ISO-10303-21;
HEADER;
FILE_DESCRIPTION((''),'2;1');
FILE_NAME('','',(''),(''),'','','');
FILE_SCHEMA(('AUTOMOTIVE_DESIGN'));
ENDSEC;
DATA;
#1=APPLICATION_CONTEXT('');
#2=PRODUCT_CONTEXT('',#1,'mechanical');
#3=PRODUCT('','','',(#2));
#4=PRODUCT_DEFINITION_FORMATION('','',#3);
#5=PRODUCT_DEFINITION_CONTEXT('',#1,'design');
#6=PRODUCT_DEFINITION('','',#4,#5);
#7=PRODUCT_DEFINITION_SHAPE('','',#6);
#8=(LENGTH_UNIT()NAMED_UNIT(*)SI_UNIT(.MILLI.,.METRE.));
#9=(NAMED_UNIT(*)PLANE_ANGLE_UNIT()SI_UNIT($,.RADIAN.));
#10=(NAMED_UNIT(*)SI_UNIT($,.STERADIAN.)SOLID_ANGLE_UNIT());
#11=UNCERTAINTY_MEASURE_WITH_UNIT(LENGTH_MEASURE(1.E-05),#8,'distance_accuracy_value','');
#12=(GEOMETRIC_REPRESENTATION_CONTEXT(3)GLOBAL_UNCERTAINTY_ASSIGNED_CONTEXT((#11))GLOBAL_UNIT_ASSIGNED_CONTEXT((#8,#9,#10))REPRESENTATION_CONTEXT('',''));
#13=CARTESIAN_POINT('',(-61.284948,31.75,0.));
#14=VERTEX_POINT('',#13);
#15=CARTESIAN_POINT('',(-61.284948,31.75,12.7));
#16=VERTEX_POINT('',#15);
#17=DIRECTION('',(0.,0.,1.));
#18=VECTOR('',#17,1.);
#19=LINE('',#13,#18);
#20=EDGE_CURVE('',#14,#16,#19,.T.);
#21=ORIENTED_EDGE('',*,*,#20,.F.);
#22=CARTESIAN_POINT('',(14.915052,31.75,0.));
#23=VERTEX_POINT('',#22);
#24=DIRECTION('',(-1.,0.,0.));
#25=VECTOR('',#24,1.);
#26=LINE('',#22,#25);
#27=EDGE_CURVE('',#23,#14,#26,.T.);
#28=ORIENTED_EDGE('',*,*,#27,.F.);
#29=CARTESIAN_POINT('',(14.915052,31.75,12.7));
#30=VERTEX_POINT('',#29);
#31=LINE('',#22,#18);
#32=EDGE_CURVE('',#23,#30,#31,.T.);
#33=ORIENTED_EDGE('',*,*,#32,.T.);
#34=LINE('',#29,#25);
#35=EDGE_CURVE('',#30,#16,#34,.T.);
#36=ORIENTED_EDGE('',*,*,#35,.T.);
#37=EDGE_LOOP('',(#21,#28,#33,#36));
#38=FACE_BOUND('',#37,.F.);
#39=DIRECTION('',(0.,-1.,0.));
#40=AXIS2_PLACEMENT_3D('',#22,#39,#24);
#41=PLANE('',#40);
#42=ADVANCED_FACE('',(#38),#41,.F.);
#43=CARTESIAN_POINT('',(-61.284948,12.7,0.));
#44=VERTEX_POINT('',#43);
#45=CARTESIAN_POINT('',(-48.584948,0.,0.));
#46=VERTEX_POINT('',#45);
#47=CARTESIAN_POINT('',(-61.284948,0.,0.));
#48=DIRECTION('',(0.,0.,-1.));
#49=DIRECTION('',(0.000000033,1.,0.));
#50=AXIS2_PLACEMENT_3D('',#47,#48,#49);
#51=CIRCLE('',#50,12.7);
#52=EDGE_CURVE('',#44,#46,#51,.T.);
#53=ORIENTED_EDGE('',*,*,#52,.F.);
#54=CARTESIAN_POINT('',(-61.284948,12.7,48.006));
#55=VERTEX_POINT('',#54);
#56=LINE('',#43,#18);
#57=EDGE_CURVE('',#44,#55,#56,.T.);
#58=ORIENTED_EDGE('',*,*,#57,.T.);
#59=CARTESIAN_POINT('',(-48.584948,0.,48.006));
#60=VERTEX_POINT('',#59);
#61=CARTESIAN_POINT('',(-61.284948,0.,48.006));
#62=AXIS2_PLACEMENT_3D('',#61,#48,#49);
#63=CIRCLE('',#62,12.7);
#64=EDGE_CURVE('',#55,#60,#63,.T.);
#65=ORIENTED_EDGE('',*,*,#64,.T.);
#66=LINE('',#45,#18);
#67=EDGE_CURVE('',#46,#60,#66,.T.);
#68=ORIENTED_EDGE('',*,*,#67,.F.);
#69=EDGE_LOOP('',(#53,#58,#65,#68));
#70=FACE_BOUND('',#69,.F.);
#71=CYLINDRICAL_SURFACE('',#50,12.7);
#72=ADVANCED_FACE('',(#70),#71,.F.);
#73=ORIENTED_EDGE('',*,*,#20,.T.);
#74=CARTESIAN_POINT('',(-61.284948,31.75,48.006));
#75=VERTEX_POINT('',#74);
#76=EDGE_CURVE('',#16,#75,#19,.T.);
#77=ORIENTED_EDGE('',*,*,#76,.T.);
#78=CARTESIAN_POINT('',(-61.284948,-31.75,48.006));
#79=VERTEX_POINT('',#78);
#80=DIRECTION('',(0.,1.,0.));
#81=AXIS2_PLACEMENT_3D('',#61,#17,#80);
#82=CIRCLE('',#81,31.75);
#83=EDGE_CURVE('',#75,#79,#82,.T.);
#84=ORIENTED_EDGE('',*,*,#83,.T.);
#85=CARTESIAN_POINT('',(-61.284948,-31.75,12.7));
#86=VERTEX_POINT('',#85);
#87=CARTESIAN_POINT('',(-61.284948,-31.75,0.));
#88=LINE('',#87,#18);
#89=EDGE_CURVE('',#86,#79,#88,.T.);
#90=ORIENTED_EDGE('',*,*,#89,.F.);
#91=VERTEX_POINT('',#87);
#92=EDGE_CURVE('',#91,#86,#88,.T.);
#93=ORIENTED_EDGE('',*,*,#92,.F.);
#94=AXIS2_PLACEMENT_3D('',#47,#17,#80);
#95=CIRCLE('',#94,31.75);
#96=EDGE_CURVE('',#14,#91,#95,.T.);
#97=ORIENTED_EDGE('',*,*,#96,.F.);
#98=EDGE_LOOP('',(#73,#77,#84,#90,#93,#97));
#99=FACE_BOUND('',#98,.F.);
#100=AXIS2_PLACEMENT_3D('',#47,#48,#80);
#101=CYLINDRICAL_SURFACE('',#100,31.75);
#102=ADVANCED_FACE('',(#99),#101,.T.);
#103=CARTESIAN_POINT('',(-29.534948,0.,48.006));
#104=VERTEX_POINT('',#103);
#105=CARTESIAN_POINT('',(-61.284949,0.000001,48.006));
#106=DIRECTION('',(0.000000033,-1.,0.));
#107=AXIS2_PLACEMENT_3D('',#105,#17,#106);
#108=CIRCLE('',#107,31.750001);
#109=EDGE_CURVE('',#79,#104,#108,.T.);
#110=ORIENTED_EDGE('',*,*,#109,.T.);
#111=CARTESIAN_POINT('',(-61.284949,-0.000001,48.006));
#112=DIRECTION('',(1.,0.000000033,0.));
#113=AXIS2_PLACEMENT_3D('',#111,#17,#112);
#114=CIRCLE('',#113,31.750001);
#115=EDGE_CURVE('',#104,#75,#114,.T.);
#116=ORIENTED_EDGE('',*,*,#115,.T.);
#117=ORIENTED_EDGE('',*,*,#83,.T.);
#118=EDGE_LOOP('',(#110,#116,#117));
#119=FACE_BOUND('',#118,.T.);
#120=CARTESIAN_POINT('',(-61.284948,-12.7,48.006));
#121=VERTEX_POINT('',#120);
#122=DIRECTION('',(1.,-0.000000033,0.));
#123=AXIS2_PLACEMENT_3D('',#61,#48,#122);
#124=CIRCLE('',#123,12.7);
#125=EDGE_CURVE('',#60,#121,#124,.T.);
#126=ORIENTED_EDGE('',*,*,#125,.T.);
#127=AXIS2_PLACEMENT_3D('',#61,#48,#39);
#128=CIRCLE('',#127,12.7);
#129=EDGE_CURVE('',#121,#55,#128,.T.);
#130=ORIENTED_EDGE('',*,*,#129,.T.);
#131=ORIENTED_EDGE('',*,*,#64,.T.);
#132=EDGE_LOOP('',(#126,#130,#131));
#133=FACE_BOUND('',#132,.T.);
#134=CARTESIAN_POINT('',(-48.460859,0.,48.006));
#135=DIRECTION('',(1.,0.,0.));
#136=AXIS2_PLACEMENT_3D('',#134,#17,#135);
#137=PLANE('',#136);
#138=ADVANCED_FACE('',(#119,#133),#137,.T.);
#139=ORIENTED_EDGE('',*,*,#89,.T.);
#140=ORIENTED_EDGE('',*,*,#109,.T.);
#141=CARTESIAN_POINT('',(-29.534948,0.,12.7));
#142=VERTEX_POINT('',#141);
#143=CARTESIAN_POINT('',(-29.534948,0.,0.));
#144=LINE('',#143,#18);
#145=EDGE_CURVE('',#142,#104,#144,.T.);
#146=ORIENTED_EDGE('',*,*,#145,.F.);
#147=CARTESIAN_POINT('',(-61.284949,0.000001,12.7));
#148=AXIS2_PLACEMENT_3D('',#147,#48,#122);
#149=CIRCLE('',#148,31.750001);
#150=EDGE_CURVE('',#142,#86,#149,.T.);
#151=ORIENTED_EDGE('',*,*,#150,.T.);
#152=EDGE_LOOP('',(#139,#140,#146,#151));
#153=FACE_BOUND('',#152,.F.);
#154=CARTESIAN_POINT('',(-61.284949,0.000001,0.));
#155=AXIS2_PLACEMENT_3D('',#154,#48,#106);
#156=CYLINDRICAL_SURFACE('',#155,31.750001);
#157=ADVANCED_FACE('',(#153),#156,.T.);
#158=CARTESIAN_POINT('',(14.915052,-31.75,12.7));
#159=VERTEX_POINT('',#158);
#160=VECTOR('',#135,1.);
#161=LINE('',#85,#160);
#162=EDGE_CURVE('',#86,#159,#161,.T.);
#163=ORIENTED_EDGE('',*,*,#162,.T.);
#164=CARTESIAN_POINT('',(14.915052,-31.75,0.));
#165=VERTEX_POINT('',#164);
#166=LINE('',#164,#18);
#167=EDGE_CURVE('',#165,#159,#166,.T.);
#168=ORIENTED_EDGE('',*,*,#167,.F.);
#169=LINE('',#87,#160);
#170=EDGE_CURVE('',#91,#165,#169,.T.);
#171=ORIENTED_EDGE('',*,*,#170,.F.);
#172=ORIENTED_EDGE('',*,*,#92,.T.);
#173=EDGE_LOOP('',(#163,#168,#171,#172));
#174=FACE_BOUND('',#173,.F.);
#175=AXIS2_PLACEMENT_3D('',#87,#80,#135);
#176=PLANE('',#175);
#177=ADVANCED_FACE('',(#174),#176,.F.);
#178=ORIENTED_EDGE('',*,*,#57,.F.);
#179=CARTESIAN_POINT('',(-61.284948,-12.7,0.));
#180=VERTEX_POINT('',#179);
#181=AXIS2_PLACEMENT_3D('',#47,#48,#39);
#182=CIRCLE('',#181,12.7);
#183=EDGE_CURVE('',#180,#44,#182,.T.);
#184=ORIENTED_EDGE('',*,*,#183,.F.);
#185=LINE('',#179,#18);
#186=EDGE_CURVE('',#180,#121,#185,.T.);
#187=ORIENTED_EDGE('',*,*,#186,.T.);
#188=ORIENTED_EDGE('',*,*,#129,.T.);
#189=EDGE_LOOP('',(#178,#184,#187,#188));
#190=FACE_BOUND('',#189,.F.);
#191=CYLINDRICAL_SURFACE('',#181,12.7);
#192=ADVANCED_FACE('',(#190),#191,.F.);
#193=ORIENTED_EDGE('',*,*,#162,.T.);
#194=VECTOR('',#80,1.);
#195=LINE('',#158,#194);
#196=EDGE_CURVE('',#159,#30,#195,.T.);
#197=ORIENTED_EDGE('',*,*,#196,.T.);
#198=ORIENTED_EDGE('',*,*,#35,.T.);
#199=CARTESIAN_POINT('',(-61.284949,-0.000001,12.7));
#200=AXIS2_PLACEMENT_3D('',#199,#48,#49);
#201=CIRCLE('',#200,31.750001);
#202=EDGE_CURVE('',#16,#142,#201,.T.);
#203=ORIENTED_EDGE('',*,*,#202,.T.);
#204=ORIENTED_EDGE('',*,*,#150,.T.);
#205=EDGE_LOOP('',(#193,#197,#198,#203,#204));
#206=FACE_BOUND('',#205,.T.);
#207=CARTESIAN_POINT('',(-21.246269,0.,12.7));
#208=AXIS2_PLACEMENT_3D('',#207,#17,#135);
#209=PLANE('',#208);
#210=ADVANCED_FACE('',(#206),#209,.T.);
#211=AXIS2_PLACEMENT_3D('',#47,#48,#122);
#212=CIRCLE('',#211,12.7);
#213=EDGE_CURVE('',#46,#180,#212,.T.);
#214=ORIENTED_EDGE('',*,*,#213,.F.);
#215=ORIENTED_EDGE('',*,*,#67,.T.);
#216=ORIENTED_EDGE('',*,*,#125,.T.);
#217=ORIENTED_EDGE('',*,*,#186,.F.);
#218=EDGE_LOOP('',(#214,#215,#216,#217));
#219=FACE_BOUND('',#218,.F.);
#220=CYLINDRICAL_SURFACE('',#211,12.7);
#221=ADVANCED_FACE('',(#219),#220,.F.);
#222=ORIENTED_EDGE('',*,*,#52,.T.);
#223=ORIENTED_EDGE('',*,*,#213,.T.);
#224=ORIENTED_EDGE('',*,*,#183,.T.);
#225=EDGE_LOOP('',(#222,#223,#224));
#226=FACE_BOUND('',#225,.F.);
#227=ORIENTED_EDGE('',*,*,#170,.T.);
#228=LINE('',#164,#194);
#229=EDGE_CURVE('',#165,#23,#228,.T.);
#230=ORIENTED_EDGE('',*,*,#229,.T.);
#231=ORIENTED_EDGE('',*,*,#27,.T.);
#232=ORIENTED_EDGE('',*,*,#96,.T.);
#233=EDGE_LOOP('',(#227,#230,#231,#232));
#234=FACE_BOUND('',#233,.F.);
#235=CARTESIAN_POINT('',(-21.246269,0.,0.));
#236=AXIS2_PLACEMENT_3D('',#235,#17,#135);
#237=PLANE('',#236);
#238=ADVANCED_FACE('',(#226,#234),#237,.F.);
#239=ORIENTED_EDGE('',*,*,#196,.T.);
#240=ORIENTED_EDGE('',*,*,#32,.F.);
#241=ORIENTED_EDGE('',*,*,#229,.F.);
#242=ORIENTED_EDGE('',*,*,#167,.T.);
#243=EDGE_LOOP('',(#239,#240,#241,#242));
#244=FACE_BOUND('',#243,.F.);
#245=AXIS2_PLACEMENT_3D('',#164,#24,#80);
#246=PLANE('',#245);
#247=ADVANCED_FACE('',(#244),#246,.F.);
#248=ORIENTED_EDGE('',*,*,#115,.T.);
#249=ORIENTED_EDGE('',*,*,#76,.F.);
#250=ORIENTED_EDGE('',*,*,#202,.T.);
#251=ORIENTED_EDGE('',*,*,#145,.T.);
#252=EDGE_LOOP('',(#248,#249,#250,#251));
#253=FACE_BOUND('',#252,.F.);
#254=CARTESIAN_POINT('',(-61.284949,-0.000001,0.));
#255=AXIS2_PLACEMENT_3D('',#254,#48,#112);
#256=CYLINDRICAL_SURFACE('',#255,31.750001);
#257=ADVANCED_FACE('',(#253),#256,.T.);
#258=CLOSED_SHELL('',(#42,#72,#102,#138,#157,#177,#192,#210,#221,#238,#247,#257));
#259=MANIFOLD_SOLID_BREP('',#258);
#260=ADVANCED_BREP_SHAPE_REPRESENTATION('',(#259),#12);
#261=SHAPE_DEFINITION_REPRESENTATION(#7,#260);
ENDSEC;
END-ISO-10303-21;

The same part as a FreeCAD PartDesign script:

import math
import FreeCAD as App
import Part
import Sketcher

V = App.Vector
Q = App.Units.Quantity

doc = App.newDocument("Part")
body = doc.addObject("PartDesign::Body", "Body")

# Sketch on XY plane
sketch1 = body.newObject("Sketcher::SketchObject", "Sketch")
sketch1.AttachmentSupport = (doc.getObject("XY_Plane"), [""])
sketch1.MapMode = "FlatFace"
sketch1.addGeometry([
    Part.ArcOfCircle(Part.Circle(V(-61, 0, 0), V(0, 0, 1), 32), math.radians(0), math.radians(90)),  # 0
    Part.ArcOfCircle(Part.Circle(V(-61, 0, 0), V(0, 0, 1), 32), math.radians(90), math.radians(270)),  # 1
    Part.ArcOfCircle(Part.Circle(V(-61, 0, 0), V(0, 0, 1), 32), math.radians(-90), math.radians(0)),  # 2
    Part.ArcOfCircle(Part.Circle(V(-61, 0, 0), V(0, 0, 1), 13), math.radians(0), math.radians(90)),  # 3
    Part.ArcOfCircle(Part.Circle(V(-61, 0, 0), V(0, 0, 1), 13), math.radians(-90), math.radians(0)),  # 4
    Part.ArcOfCircle(Part.Circle(V(-61, 0, 0), V(0, 0, 1), 13), math.radians(90), math.radians(270)),  # 5
], False)
sketch1.addConstraint([
    Sketcher.Constraint("Tangent", 0, 2, 1, 1),
    Sketcher.Constraint("Tangent", 1, 2, 2, 1),
    Sketcher.Constraint("Tangent", 2, 2, 0, 1),
    Sketcher.Constraint("Tangent", 3, 1, 4, 2),
    Sketcher.Constraint("Tangent", 4, 1, 5, 2),
    Sketcher.Constraint("Tangent", 5, 1, 3, 2),
    Sketcher.Constraint("Coincident", 3, 3, 0, 3),
    Sketcher.Constraint("Symmetric", 0, 2, 1, 2, -1),
    Sketcher.Constraint("PointOnObject", 2, 2, -1),
    Sketcher.Constraint("PointOnObject", 3, 1, -1),
    Sketcher.Constraint("Vertical", 5, 3, 0, 2),
    Sketcher.Constraint("Vertical", 1, 2, 4, 1),
    Sketcher.Constraint("Vertical", 4, 1, 5, 1),
    Sketcher.Constraint("Radius", 3, Q("0.5 in")),
    Sketcher.Constraint("Radius", 0, Q("1.25 in")),
    Sketcher.Constraint("DistanceX", 0, 3, -1, 1, 61.284949),
])
pad1 = body.newObject("PartDesign::Pad", "Pad")
pad1.Profile = sketch1
pad1.Length = Q("1.89 in")

# Sketch on XY plane
sketch2 = body.newObject("Sketcher::SketchObject", "Sketch001")
sketch2.AttachmentSupport = (doc.getObject("XY_Plane"), [""])
sketch2.MapMode = "FlatFace"
sketch2.addGeometry([
    Part.LineSegment(V(15, 32, 0), V(-61, 32, 0)),  # 0
    Part.ArcOfCircle(Part.Circle(V(-61, 0, 0), V(0, 0, 1), 32), math.radians(0), math.radians(90)),  # 1
    Part.ArcOfCircle(Part.Circle(V(-61, 0, 0), V(0, 0, 1), 32), math.radians(-90), math.radians(0)),  # 2
    Part.LineSegment(V(-61, -32, 0), V(15, -32, 0)),  # 3
    Part.LineSegment(V(15, -32, 0), V(15, 32, 0)),  # 4
], False)
sketch2.addConstraint([
    Sketcher.Constraint("Tangent", 0, 2, 1, 2),
    Sketcher.Constraint("Tangent", 1, 1, 2, 2),
    Sketcher.Constraint("Tangent", 2, 1, 3, 1),
    Sketcher.Constraint("Coincident", 3, 2, 4, 1),
    Sketcher.Constraint("Coincident", 4, 2, 0, 1),
    Sketcher.Constraint("Horizontal", 0),
    Sketcher.Constraint("Horizontal", 3),
    Sketcher.Constraint("Vertical", 4),
    Sketcher.Constraint("Equal", 1, 2),
    Sketcher.Constraint("PointOnObject", 1, 3, -1),
    Sketcher.Constraint("PointOnObject", 1, 1, -1),
    Sketcher.Constraint("DistanceX", 0, 2, 0, 1, Q("3 in")),
    Sketcher.Constraint("Radius", 1, Q("1.25 in")),
    Sketcher.Constraint("DistanceX", 1, 3, -1, 1, 61.284949),
])
pad2 = body.newObject("PartDesign::Pad", "Pad001")
pad2.Profile = sketch2
pad2.Length = Q("0.5 in")

doc.recompute()
